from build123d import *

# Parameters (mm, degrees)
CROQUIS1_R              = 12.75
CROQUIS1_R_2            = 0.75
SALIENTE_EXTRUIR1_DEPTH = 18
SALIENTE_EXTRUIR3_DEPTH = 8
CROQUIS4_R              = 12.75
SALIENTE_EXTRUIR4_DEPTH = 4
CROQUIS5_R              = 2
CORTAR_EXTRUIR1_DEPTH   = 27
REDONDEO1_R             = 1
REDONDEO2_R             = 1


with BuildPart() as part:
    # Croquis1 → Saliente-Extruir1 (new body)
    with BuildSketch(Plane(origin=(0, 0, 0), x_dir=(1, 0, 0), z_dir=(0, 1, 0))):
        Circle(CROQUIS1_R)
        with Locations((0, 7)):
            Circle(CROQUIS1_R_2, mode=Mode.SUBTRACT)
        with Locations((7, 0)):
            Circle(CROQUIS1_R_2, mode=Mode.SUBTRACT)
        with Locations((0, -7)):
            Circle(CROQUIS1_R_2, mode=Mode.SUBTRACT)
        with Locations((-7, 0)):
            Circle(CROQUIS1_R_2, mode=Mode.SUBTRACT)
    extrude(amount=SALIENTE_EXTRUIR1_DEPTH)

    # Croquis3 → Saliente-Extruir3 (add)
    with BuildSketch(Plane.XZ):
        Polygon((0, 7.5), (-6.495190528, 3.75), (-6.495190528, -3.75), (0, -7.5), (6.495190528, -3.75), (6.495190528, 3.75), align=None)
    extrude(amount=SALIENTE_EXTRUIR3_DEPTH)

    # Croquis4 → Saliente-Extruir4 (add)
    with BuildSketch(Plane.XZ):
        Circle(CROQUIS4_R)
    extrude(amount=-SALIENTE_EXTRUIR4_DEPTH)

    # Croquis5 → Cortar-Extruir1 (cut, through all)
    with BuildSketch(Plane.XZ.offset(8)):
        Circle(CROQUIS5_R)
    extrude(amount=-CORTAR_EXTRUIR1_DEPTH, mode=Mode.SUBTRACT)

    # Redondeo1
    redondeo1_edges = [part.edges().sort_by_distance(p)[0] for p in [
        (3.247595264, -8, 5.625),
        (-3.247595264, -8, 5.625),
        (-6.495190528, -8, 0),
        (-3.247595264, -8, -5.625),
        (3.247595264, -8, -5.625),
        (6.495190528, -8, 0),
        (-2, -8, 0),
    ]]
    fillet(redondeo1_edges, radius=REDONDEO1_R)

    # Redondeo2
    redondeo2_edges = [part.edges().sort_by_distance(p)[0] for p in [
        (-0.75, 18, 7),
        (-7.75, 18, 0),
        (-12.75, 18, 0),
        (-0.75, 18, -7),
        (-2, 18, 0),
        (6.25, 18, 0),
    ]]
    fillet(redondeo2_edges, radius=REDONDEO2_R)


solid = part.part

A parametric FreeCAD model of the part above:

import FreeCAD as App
import Part
import Sketcher

V = App.Vector
Q = App.Units.Quantity


def edges_at(feature, points):
    """Names of the edges that pass closest to the given points."""
    edges = feature.Shape.Edges
    near = lambda p: min(range(len(edges)), key=lambda i: edges[i].distToShape(Part.Vertex(*p))[0])
    return sorted({f"Edge{near(p) + 1}" for p in points})


def add_polygon(sketch, points):
    """Adds a closed chain of lines whose ends are joined by coincident constraints."""
    first, n = sketch.GeometryCount, len(points)
    for a, b in zip(points, points[1:] + points[:1]):
        sketch.addGeometry(Part.LineSegment(App.Vector(*a, 0), App.Vector(*b, 0)), False)
    for i in range(n):
        sketch.addConstraint(Sketcher.Constraint("Coincident", first + i, 2, first + (i + 1) % n, 1))

doc = App.newDocument("Part")
body = doc.addObject("PartDesign::Body", "Body")

# Sketch on XZ plane
sketch1 = doc.addObject("Sketcher::SketchObject", "Sketch")
body.addObject(sketch1)
sketch1.AttachmentSupport = (doc.XZ_Plane, [""])
sketch1.MapMode = "FlatFace"
sketch1.addGeometry(Part.Circle(V(0, 0, 0), V(0, 0, 1), 12.75), False)
sketch1.addGeometry(Part.Circle(V(0, 7, 0), V(0, 0, 1), 0.75), False)
sketch1.addGeometry(Part.Circle(V(-7, 0, 0), V(0, 0, 1), 0.75), False)
sketch1.addGeometry(Part.Circle(V(7, 0, 0), V(0, 0, 1), 0.75), False)
sketch1.addGeometry(Part.Circle(V(0, -7, 0), V(0, 0, 1), 0.75), False)
sketch1.addConstraint(Sketcher.Constraint("Coincident", 0, 3, -1, 1))
sketch1.addConstraint(Sketcher.Constraint("Equal", 1, 2))
sketch1.addConstraint(Sketcher.Constraint("Equal", 2, 3))
sketch1.addConstraint(Sketcher.Constraint("Equal", 3, 4))
sketch1.addConstraint(Sketcher.Constraint("Symmetric", 2, 3, 3, 3, -1, 1))
sketch1.addConstraint(Sketcher.Constraint("Symmetric", 1, 3, 4, 3, -1, 1))
sketch1.addConstraint(Sketcher.Constraint("PointOnObject", 1, 3, -2))
sketch1.addConstraint(Sketcher.Constraint("PointOnObject", 2, 3, -1))
sketch1.addConstraint(Sketcher.Constraint("Diameter", 0, 25.5))
sketch1.addConstraint(Sketcher.Constraint("Diameter", 1, 1.5))
sketch1.addConstraint(Sketcher.Constraint("DistanceY", -1, 1, 1, 3, 7.0))
sketch1.addConstraint(Sketcher.Constraint("DistanceX", 2, 3, -1, 1, 7.0))
pad1 = doc.addObject("PartDesign::Pad", "Pad")
body.addObject(pad1)
pad1.Profile = sketch1
pad1.Length = 18
pad1.Reversed = True

# Sketch on XZ plane
sketch2 = doc.addObject("Sketcher::SketchObject", "Sketch001")
body.addObject(sketch2)
sketch2.AttachmentSupport = (doc.XZ_Plane, [""])
sketch2.MapMode = "FlatFace"
add_polygon(sketch2, [(0, 7.5), (-6.495191, 3.75), (-6.495191, -3.75), (0, -7.5), (6.495191, -3.75), (6.495191, 3.75)])  # lines 0-5
sketch2.addConstraint(Sketcher.Constraint("Vertical", 1))
sketch2.addConstraint(Sketcher.Constraint("Vertical", 4))
sketch2.addConstraint(Sketcher.Constraint("Symmetric", 0, 2, 3, 2, -1, 1))
sketch2.addConstraint(Sketcher.Constraint("Symmetric", 2, 2, 5, 2, -1, 1))
sketch2.addConstraint(Sketcher.Constraint("PointOnObject", 2, 2, -2))
sketch2.addConstraint(Sketcher.Constraint("Parallel", 2, 5))
sketch2.addConstraint(Sketcher.Constraint("Horizontal", 1, 2, 3, 2))
sketch2.addConstraint(Sketcher.Constraint("Angle", 0, Q("-150 deg")))
sketch2.addConstraint(Sketcher.Constraint("DistanceY", 1, 2, 1, 1, 7.5))
sketch2.addConstraint(Sketcher.Constraint("DistanceY", 2, 2, 5, 2, 15.0))
pad2 = doc.addObject("PartDesign::Pad", "Pad001")
body.addObject(pad2)
pad2.Profile = sketch2
pad2.Length = 8

# Sketch on XZ plane
sketch3 = doc.addObject("Sketcher::SketchObject", "Sketch002")
body.addObject(sketch3)
sketch3.AttachmentSupport = (doc.XZ_Plane, [""])
sketch3.MapMode = "FlatFace"
sketch3.addGeometry(Part.Circle(V(0, 0, 0), V(0, 0, 1), 12.75), False)
sketch3.addConstraint(Sketcher.Constraint("Coincident", 0, 3, -1, 1))
sketch3.addConstraint(Sketcher.Constraint("Diameter", 0, 25.5))
pad3 = doc.addObject("PartDesign::Pad", "Pad002")
body.addObject(pad3)
pad3.Profile = sketch3
pad3.Length = 4
pad3.Reversed = True

# Sketch on XZ plane
sketch4 = doc.addObject("Sketcher::SketchObject", "Sketch003")
body.addObject(sketch4)
sketch4.AttachmentSupport = (doc.XZ_Plane, [""])
sketch4.MapMode = "FlatFace"
sketch4.AttachmentOffset = App.Placement(V(0, 0, 8), App.Rotation())
sketch4.addGeometry(Part.Circle(V(0, 0, 0), V(0, 0, 1), 2), False)
sketch4.addConstraint(Sketcher.Constraint("Coincident", 0, 3, -1, 1))
sketch4.addConstraint(Sketcher.Constraint("Diameter", 0, 4.0))
pocket1 = doc.addObject("PartDesign::Pocket", "Pocket")
body.addObject(pocket1)
pocket1.Profile = sketch4
pocket1.Type = "ThroughAll"
doc.recompute()

fillet = doc.addObject("PartDesign::Fillet", "Fillet")
body.addObject(fillet)
fillet.Base = (pocket1, edges_at(pocket1, [
    (3.248, -8, 5.625),
    (-3.248, -8, 5.625),
    (-6.495, -8, 0),
    (-3.248, -8, -5.625),
    (3.248, -8, -5.625),
    (6.495, -8, 0),
    (-2, -8, 0),
]))
fillet.Radius = 1
doc.recompute()

fillet2 = doc.addObject("PartDesign::Fillet", "Fillet001")
body.addObject(fillet2)
fillet2.Base = (fillet, edges_at(fillet, [
    (-0.75, 18, 7),
    (-7.75, 18, 0),
    (-12.75, 18, 0),
    (-0.75, 18, -7),
    (-2, 18, 0),
    (6.25, 18, 0),
]))
fillet2.Radius = 1

doc.recompute()
